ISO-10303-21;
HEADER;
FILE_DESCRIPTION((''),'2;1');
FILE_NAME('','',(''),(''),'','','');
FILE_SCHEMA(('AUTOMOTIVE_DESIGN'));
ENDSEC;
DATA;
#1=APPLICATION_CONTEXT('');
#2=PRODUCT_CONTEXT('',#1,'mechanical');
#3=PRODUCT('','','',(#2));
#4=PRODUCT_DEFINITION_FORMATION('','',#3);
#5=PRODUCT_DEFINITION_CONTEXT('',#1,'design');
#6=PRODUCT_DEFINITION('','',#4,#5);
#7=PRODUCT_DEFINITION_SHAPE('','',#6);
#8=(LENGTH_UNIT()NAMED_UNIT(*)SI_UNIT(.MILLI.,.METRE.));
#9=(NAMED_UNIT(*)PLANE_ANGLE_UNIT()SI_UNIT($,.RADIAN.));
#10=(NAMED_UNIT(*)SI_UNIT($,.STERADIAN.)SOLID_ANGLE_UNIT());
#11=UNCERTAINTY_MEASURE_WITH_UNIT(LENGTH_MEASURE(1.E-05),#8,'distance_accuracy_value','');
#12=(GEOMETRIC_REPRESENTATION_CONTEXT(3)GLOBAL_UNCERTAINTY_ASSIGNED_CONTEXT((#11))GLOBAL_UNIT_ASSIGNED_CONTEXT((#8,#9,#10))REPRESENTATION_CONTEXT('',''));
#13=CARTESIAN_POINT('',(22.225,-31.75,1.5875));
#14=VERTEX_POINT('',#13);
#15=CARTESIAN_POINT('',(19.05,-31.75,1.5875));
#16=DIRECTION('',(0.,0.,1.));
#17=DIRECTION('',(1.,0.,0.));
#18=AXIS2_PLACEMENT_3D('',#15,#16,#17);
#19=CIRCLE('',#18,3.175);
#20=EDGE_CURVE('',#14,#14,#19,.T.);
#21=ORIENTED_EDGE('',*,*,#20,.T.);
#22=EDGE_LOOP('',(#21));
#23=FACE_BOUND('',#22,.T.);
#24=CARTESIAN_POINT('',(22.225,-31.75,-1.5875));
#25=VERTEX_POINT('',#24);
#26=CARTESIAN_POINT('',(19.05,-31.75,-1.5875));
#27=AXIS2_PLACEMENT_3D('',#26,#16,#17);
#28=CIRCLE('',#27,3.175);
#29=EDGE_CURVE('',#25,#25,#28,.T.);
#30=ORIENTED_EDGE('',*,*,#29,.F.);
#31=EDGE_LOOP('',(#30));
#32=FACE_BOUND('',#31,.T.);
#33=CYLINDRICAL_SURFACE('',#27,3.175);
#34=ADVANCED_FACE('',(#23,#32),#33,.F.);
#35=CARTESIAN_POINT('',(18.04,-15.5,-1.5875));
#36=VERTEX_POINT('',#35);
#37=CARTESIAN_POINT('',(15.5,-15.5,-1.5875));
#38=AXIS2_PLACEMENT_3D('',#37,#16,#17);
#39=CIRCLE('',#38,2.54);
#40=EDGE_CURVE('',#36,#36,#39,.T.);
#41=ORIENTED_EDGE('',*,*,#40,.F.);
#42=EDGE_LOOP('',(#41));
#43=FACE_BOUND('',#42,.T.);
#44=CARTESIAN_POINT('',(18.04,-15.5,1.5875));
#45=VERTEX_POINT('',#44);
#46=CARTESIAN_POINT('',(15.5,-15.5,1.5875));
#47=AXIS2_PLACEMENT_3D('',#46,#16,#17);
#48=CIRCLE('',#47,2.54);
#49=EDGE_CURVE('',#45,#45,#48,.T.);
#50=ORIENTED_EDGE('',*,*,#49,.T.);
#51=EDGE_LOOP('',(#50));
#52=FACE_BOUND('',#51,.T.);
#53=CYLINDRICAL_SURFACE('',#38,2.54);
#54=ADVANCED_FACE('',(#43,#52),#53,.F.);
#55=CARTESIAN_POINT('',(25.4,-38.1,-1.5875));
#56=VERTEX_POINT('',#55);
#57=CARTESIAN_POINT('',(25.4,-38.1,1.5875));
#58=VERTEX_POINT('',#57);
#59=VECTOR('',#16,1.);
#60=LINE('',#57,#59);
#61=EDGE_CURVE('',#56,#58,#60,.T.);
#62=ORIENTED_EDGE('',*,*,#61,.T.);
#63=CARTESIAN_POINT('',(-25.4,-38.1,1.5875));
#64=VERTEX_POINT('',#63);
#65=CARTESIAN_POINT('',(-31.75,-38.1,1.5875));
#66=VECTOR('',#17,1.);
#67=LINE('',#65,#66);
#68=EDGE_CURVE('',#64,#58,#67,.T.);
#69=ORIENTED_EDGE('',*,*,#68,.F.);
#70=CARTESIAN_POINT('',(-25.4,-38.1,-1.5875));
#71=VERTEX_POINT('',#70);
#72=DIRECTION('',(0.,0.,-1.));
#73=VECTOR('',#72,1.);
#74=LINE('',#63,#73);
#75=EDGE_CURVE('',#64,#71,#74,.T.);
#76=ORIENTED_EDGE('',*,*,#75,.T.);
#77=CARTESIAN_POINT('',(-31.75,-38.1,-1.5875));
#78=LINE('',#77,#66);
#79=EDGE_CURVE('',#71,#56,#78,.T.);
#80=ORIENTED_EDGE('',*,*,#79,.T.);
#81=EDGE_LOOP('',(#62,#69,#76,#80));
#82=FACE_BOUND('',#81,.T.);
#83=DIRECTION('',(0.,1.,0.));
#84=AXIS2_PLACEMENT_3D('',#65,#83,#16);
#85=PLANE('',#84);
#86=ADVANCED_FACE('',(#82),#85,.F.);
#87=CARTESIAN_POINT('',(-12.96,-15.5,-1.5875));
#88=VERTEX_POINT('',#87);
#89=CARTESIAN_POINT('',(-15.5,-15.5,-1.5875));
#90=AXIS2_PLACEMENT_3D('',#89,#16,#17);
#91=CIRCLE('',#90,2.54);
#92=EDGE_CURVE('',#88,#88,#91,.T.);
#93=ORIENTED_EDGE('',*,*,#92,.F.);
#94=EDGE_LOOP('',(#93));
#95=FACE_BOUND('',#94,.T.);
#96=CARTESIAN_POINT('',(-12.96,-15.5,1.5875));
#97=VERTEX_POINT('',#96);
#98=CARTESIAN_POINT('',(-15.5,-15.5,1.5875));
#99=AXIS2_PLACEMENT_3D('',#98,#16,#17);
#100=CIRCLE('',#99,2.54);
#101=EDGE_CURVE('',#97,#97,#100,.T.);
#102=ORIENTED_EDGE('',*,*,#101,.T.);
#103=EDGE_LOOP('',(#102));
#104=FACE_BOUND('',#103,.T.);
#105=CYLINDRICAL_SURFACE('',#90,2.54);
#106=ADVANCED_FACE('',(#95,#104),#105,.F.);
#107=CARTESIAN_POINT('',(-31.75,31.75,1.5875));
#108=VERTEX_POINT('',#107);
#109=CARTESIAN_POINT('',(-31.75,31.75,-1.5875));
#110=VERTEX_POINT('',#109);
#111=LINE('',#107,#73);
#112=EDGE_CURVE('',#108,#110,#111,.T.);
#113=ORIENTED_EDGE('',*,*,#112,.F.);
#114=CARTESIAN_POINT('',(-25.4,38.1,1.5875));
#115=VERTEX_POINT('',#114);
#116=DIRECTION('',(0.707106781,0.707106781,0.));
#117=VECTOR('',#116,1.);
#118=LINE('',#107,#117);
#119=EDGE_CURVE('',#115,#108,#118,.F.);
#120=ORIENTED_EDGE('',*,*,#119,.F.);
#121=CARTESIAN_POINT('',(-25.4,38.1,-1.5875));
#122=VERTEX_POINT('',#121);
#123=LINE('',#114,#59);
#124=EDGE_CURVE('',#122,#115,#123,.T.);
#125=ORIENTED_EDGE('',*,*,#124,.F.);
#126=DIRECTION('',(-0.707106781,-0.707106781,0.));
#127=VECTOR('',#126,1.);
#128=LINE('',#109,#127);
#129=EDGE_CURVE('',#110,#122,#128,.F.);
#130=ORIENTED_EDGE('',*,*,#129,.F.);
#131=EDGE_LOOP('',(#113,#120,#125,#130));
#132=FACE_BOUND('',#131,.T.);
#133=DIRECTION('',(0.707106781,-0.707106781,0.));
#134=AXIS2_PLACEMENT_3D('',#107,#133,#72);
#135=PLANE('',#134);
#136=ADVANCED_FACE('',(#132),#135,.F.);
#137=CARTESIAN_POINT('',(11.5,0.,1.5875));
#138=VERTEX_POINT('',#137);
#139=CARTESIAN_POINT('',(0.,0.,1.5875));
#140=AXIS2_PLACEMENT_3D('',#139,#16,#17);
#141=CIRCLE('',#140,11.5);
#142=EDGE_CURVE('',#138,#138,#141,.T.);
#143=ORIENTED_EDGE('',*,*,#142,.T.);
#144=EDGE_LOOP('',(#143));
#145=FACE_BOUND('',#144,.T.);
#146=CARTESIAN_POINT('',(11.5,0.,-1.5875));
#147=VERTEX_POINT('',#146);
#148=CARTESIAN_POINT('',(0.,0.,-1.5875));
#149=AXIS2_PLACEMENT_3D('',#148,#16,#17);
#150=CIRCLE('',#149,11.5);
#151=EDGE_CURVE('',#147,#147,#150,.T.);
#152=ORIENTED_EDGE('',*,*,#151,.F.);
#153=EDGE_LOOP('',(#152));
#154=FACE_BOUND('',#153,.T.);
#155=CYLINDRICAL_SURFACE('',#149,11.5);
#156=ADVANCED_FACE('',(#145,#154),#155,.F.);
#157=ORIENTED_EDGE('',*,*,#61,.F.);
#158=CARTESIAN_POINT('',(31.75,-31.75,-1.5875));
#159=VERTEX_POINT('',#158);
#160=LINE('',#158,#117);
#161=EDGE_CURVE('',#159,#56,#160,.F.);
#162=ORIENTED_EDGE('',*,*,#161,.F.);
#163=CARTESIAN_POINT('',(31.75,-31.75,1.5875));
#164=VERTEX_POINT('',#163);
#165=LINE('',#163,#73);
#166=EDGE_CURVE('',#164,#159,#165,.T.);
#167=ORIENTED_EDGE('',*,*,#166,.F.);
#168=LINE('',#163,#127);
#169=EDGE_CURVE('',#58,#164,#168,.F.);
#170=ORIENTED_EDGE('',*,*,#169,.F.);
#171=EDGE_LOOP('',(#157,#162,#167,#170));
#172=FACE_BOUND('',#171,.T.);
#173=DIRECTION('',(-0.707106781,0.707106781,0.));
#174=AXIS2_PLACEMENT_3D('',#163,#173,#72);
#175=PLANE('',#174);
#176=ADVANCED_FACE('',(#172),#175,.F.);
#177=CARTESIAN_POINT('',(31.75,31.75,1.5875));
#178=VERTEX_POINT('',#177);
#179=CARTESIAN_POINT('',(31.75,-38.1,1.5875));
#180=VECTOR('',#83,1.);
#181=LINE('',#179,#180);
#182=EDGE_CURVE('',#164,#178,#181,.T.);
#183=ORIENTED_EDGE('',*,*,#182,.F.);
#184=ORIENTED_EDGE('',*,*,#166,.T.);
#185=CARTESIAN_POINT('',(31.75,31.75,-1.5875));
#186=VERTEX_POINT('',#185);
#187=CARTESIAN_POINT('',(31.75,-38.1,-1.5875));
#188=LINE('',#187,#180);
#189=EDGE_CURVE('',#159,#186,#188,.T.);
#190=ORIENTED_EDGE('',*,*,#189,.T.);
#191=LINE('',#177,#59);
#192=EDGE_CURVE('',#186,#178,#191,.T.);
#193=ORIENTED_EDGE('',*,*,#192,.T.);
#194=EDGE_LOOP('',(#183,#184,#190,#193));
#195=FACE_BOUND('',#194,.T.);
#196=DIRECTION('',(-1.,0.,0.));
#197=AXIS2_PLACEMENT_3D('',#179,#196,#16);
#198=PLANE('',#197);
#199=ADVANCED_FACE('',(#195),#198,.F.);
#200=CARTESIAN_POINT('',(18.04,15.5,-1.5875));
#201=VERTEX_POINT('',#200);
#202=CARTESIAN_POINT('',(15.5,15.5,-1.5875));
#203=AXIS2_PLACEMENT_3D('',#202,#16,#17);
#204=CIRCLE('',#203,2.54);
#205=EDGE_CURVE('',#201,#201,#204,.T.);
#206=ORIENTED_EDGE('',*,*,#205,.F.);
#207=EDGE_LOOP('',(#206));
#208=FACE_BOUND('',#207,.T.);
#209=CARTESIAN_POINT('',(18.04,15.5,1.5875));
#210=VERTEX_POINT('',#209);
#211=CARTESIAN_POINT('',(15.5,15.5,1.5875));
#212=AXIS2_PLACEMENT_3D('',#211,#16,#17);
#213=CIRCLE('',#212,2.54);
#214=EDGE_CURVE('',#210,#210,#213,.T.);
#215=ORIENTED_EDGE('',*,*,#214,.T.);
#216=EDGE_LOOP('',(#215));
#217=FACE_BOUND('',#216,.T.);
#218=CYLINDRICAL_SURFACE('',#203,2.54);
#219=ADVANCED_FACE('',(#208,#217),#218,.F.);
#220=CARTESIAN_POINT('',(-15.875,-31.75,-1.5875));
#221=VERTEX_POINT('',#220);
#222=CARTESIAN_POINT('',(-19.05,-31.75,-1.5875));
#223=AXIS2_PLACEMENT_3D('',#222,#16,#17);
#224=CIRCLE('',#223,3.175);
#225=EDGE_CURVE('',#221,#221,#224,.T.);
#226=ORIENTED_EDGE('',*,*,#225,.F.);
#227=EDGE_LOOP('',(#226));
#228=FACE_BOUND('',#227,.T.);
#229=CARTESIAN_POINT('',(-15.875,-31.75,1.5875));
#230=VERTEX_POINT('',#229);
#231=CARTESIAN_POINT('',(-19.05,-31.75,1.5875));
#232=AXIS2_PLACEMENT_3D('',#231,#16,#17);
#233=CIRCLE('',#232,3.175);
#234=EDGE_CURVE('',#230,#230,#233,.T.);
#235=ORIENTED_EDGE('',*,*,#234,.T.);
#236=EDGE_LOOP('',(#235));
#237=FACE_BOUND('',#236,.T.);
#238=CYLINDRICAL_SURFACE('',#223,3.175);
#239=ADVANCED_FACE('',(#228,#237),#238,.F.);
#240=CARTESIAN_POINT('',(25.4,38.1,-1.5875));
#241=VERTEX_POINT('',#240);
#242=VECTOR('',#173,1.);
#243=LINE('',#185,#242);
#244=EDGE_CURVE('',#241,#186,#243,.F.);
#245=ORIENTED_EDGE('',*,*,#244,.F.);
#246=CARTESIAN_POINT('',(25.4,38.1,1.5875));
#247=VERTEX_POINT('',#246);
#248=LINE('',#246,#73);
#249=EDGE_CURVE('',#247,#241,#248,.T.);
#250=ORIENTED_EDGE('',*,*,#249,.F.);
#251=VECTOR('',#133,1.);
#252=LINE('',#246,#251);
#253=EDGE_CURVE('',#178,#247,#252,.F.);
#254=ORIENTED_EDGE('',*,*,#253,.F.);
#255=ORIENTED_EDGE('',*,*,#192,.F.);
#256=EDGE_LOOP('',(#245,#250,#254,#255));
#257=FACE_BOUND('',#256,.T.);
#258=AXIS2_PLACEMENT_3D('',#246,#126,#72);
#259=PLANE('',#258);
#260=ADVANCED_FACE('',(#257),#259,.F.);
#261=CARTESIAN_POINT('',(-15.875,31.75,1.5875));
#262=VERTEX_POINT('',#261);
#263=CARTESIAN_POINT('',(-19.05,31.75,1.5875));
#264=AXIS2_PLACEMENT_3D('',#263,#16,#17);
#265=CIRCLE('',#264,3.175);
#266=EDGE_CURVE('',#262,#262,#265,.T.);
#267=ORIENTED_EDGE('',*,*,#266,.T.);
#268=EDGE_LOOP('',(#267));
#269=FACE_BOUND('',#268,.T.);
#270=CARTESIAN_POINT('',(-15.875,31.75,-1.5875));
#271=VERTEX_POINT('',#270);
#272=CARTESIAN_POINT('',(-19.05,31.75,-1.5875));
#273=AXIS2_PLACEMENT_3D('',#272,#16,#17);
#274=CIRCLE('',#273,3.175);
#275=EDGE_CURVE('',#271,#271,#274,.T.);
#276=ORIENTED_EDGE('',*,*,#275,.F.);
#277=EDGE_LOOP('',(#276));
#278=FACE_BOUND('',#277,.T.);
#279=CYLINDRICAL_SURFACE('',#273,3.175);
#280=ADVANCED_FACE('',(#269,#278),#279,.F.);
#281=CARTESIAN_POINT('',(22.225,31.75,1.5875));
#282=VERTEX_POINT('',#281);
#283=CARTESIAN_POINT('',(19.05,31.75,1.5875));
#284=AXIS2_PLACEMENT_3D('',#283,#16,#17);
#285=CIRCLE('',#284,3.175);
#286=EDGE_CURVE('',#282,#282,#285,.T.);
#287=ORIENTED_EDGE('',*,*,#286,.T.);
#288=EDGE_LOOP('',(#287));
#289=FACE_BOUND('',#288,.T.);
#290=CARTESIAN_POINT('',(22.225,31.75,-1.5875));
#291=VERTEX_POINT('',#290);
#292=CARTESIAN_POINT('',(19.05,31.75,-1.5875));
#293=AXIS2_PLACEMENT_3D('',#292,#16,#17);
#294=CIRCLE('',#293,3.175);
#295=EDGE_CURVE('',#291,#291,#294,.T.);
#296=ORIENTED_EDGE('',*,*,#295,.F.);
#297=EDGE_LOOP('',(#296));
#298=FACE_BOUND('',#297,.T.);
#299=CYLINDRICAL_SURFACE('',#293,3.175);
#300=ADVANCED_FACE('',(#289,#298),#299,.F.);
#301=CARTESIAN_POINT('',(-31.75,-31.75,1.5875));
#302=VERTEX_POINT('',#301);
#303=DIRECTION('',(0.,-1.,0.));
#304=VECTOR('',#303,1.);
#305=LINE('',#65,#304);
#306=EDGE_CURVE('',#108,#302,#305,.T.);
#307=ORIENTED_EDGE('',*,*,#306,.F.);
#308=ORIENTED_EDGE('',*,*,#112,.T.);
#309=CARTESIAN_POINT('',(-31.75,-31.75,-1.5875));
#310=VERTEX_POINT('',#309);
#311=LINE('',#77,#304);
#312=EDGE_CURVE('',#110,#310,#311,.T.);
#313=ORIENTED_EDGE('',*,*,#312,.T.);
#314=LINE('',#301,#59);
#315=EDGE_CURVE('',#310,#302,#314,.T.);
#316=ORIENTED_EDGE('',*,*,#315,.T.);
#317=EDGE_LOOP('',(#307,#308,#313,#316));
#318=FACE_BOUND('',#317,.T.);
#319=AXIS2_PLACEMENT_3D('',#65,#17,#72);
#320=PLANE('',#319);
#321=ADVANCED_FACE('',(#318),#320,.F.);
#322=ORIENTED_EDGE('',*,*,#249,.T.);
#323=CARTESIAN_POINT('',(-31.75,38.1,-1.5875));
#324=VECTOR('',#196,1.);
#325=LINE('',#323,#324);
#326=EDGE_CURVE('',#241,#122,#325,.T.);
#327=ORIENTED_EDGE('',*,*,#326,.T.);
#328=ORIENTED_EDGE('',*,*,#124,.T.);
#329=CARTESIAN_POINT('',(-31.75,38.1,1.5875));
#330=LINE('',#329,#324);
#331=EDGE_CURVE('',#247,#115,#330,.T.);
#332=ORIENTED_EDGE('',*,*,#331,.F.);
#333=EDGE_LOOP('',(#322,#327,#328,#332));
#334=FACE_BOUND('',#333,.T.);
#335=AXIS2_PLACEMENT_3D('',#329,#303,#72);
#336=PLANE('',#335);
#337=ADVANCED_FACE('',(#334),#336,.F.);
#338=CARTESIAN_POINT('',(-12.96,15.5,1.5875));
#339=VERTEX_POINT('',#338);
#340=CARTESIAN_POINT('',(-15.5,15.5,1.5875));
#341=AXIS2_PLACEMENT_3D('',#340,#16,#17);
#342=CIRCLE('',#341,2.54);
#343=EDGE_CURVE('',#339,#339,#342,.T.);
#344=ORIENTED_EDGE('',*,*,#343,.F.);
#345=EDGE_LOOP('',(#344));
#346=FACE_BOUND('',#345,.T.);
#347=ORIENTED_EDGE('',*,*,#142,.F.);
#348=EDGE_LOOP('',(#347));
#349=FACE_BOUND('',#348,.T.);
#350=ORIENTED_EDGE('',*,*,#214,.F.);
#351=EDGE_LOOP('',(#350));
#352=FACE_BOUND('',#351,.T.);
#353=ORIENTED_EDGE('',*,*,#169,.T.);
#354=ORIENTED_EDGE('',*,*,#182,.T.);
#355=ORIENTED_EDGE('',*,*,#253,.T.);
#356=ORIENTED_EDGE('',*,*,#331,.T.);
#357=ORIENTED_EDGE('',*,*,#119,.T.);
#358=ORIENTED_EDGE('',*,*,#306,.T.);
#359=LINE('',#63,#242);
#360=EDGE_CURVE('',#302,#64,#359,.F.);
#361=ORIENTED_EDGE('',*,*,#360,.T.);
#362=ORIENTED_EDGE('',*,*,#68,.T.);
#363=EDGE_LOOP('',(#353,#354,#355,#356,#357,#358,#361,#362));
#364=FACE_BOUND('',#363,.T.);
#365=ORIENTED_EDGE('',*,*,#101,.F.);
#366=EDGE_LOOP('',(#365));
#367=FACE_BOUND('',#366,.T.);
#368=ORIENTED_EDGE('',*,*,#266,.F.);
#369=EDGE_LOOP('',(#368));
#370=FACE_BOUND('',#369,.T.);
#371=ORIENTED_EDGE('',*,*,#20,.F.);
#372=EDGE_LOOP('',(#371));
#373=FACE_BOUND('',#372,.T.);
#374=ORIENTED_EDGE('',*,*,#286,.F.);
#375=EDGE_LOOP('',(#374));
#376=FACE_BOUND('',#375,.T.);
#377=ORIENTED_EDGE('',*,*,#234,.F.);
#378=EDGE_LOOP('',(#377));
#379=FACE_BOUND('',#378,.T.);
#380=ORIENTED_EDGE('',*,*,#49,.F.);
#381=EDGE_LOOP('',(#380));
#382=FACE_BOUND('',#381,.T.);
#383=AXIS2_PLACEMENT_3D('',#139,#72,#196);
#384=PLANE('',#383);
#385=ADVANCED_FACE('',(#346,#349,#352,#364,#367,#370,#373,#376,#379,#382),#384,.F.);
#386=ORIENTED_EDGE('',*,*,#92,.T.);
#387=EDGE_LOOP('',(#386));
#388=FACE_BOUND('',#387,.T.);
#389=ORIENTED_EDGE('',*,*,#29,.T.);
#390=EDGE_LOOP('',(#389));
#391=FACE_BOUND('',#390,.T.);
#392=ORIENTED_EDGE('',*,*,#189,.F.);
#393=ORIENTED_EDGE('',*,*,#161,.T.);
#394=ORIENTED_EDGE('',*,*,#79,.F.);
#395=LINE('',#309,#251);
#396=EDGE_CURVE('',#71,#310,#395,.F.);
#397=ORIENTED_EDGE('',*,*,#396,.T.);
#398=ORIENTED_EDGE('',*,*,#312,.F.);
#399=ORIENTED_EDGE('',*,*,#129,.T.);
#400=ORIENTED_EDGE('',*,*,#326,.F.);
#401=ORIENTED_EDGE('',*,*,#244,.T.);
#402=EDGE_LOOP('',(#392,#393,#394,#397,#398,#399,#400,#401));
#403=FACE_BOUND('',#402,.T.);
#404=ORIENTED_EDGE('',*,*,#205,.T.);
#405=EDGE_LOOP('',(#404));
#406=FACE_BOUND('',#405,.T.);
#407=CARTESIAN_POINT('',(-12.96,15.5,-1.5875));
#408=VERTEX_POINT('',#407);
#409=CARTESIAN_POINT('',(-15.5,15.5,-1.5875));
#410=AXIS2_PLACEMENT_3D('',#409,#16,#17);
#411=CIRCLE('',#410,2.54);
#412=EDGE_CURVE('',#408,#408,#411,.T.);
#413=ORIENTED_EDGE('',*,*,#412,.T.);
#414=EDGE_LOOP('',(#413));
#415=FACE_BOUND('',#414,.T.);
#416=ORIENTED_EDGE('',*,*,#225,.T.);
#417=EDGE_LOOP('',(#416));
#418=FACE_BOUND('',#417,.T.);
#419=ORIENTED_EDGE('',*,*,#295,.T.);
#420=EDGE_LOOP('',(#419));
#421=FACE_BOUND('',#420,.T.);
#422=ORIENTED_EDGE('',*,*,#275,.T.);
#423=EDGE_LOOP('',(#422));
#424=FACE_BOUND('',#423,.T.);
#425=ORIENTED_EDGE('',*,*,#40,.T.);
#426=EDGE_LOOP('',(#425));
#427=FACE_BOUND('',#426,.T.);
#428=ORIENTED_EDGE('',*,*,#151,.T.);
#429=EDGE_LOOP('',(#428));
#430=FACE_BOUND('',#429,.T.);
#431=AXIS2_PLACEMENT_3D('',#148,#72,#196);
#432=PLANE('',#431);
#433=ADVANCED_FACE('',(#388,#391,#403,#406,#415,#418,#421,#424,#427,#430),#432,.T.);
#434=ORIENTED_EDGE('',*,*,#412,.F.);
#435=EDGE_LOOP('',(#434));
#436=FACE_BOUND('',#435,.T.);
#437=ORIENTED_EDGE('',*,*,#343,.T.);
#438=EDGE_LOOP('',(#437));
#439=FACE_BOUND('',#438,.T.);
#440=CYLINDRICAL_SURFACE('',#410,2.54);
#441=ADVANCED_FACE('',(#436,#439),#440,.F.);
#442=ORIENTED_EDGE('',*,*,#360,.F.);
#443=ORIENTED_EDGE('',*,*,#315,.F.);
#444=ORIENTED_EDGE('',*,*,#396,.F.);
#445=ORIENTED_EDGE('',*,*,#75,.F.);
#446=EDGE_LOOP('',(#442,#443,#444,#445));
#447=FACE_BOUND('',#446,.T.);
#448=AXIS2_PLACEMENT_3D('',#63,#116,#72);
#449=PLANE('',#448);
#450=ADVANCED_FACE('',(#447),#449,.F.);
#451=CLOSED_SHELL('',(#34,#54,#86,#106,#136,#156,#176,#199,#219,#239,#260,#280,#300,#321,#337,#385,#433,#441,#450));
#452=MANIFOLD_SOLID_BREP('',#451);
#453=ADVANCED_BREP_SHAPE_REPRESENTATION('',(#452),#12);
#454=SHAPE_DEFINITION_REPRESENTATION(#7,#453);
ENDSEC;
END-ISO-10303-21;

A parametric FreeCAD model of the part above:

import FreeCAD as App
import Part
import Sketcher
from FreeCAD import Vector
Q = App.Units.Quantity


def edges_at(feature, points):
    """Names of the edges that pass closest to the given points."""
    edges = feature.Shape.Edges
    near = lambda p: min(range(len(edges)), key=lambda i: edges[i].distToShape(Part.Vertex(*p))[0])
    return sorted({f"Edge{near(p) + 1}" for p in points})

doc = App.newDocument("Part")
body = doc.addObject("PartDesign::Body", "Body")

sketch1 = body.newObject("Sketcher::SketchObject", "Sketch")
sketch1.AttachmentSupport = (doc.getObject("XY_Plane"), [""])
sketch1.MapMode = "FlatFace"
sketch1.addGeometry([
    Part.LineSegment(Vector(-31.75, 38.1, 0), Vector(-31.75, -38.1, 0)),
    Part.LineSegment(Vector(-31.75, -38.1, 0), Vector(31.75, -38.1, 0)),
    Part.LineSegment(Vector(31.75, -38.1, 0), Vector(31.75, 38.1, 0)),
    Part.LineSegment(Vector(31.75, 38.1, 0), Vector(-31.75, 38.1, 0)),
], False)
sketch1.addConstraint([
    Sketcher.Constraint("Coincident", 0, 2, 1, 1),
    Sketcher.Constraint("Coincident", 1, 2, 2, 1),
    Sketcher.Constraint("Coincident", 2, 2, 3, 1),
    Sketcher.Constraint("Coincident", 3, 2, 0, 1),
    Sketcher.Constraint("Vertical", 0),
    Sketcher.Constraint("Horizontal", 1),
    Sketcher.Constraint("Vertical", 2),
    Sketcher.Constraint("Horizontal", 3),
    Sketcher.Constraint("Symmetric", 0, 2, 2, 2, -1, 1),
    Sketcher.Constraint("DistanceY", 0, 2, 0, 1, Q("3 in")),
    Sketcher.Constraint("DistanceX", 1, 1, 1, 2, Q("2.5 in")),
])
pad1 = body.newObject("PartDesign::Pad", "Pad")
pad1.Profile = sketch1
pad1.Length = Q("0.125 in")
pad1.Midplane = True

sketch2 = body.newObject("Sketcher::SketchObject", "Sketch001")
sketch2.AttachmentSupport = (doc.getObject("XY_Plane"), [""])
sketch2.MapMode = "FlatFace"
sketch2.AttachmentOffset = App.Placement(Vector(0, 0, 0.0625 * 25.4), App.Rotation())
sketch2.addGeometry([
    Part.Circle(Vector(-19.05, 31.75, 0), Vector(0, 0, 1), 3.175),
    Part.Circle(Vector(19.05, 31.75, 0), Vector(0, 0, 1), 3.175),
    Part.Circle(Vector(19.05, -31.75, 0), Vector(0, 0, 1), 3.175),
    Part.Circle(Vector(-19.05, -31.75, 0), Vector(0, 0, 1), 3.175),
], False)
sketch2.addConstraint([
    Sketcher.Constraint("Equal", 0, 1),
    Sketcher.Constraint("Equal", 1, 2),
    Sketcher.Constraint("Equal", 2, 3),
    Sketcher.Constraint("Symmetric", 0, 3, 2, 3, -1, 1),
    Sketcher.Constraint("Symmetric", 1, 3, 3, 3, -1, 1),
    Sketcher.Constraint("Symmetric", 0, 3, 1, 3, -2),
    Sketcher.Constraint("Diameter", 0, Q("0.25 in")),
    Sketcher.Constraint("DistanceX", 0, 3, 1, 3, Q("1.5 in")),
    Sketcher.Constraint("DistanceY", 2, 3, 1, 3, Q("2.5 in")),
])
pocket1 = body.newObject("PartDesign::Pocket", "Pocket")
pocket1.Profile = sketch2
pocket1.Type = "ThroughAll"

sketch3 = body.newObject("Sketcher::SketchObject", "Sketch002")
sketch3.AttachmentSupport = (doc.getObject("XY_Plane"), [""])
sketch3.MapMode = "FlatFace"
sketch3.AttachmentOffset = App.Placement(Vector(0, 0, 0.0625 * 25.4), App.Rotation())
sketch3.addGeometry([
    Part.Circle(Vector(-15.5, 15.5, 0), Vector(0, 0, 1), 2.54),
    Part.Circle(Vector(15.5, 15.5, 0), Vector(0, 0, 1), 2.54),
    Part.Circle(Vector(15.5, -15.5, 0), Vector(0, 0, 1), 2.54),
    Part.Circle(Vector(-15.5, -15.5, 0), Vector(0, 0, 1), 2.54),
], False)
sketch3.addConstraint([
    Sketcher.Constraint("Equal", 0, 1),
    Sketcher.Constraint("Equal", 1, 2),
    Sketcher.Constraint("Equal", 2, 3),
    Sketcher.Constraint("Symmetric", 0, 3, 2, 3, -1, 1),
    Sketcher.Constraint("Symmetric", 1, 3, 3, 3, -1, 1),
    Sketcher.Constraint("Symmetric", 0, 3, 1, 3, -2),
    Sketcher.Constraint("Diameter", 0, Q("0.2 in")),
    Sketcher.Constraint("DistanceX", 0, 3, -1, 1, 15.5),
    Sketcher.Constraint("DistanceY", -1, 1, 0, 3, 15.5),
])
pocket2 = body.newObject("PartDesign::Pocket", "Pocket001")
pocket2.Profile = sketch3
pocket2.Type = "ThroughAll"
doc.recompute()

chamfer = body.newObject("PartDesign::Chamfer", "Chamfer")
chamfer.Base = (pocket2, edges_at(pocket2, [
    (31.75, -38.1, 0),
    (-31.75, -38.1, 0),
    (-31.75, 38.1, 0),
    (31.75, 38.1, 0),
]))
chamfer.Size = Q("0.25 in")

sketch4 = body.newObject("Sketcher::SketchObject", "Sketch003")
sketch4.AttachmentSupport = (doc.getObject("XY_Plane"), [""])
sketch4.MapMode = "FlatFace"
sketch4.AttachmentOffset = App.Placement(Vector(0, 0, 0.0625 * 25.4), App.Rotation())
sketch4.addGeometry(Part.Circle(Vector(0, 0, 0), Vector(0, 0, 1), 11.5), False)
sketch4.addConstraint([
    Sketcher.Constraint("Coincident", 0, 3, -1, 1),
    Sketcher.Constraint("Diameter", 0, 23.0),
])
pocket3 = body.newObject("PartDesign::Pocket", "Pocket002")
pocket3.Profile = sketch4
pocket3.Type = "ThroughAll"

doc.recompute()
